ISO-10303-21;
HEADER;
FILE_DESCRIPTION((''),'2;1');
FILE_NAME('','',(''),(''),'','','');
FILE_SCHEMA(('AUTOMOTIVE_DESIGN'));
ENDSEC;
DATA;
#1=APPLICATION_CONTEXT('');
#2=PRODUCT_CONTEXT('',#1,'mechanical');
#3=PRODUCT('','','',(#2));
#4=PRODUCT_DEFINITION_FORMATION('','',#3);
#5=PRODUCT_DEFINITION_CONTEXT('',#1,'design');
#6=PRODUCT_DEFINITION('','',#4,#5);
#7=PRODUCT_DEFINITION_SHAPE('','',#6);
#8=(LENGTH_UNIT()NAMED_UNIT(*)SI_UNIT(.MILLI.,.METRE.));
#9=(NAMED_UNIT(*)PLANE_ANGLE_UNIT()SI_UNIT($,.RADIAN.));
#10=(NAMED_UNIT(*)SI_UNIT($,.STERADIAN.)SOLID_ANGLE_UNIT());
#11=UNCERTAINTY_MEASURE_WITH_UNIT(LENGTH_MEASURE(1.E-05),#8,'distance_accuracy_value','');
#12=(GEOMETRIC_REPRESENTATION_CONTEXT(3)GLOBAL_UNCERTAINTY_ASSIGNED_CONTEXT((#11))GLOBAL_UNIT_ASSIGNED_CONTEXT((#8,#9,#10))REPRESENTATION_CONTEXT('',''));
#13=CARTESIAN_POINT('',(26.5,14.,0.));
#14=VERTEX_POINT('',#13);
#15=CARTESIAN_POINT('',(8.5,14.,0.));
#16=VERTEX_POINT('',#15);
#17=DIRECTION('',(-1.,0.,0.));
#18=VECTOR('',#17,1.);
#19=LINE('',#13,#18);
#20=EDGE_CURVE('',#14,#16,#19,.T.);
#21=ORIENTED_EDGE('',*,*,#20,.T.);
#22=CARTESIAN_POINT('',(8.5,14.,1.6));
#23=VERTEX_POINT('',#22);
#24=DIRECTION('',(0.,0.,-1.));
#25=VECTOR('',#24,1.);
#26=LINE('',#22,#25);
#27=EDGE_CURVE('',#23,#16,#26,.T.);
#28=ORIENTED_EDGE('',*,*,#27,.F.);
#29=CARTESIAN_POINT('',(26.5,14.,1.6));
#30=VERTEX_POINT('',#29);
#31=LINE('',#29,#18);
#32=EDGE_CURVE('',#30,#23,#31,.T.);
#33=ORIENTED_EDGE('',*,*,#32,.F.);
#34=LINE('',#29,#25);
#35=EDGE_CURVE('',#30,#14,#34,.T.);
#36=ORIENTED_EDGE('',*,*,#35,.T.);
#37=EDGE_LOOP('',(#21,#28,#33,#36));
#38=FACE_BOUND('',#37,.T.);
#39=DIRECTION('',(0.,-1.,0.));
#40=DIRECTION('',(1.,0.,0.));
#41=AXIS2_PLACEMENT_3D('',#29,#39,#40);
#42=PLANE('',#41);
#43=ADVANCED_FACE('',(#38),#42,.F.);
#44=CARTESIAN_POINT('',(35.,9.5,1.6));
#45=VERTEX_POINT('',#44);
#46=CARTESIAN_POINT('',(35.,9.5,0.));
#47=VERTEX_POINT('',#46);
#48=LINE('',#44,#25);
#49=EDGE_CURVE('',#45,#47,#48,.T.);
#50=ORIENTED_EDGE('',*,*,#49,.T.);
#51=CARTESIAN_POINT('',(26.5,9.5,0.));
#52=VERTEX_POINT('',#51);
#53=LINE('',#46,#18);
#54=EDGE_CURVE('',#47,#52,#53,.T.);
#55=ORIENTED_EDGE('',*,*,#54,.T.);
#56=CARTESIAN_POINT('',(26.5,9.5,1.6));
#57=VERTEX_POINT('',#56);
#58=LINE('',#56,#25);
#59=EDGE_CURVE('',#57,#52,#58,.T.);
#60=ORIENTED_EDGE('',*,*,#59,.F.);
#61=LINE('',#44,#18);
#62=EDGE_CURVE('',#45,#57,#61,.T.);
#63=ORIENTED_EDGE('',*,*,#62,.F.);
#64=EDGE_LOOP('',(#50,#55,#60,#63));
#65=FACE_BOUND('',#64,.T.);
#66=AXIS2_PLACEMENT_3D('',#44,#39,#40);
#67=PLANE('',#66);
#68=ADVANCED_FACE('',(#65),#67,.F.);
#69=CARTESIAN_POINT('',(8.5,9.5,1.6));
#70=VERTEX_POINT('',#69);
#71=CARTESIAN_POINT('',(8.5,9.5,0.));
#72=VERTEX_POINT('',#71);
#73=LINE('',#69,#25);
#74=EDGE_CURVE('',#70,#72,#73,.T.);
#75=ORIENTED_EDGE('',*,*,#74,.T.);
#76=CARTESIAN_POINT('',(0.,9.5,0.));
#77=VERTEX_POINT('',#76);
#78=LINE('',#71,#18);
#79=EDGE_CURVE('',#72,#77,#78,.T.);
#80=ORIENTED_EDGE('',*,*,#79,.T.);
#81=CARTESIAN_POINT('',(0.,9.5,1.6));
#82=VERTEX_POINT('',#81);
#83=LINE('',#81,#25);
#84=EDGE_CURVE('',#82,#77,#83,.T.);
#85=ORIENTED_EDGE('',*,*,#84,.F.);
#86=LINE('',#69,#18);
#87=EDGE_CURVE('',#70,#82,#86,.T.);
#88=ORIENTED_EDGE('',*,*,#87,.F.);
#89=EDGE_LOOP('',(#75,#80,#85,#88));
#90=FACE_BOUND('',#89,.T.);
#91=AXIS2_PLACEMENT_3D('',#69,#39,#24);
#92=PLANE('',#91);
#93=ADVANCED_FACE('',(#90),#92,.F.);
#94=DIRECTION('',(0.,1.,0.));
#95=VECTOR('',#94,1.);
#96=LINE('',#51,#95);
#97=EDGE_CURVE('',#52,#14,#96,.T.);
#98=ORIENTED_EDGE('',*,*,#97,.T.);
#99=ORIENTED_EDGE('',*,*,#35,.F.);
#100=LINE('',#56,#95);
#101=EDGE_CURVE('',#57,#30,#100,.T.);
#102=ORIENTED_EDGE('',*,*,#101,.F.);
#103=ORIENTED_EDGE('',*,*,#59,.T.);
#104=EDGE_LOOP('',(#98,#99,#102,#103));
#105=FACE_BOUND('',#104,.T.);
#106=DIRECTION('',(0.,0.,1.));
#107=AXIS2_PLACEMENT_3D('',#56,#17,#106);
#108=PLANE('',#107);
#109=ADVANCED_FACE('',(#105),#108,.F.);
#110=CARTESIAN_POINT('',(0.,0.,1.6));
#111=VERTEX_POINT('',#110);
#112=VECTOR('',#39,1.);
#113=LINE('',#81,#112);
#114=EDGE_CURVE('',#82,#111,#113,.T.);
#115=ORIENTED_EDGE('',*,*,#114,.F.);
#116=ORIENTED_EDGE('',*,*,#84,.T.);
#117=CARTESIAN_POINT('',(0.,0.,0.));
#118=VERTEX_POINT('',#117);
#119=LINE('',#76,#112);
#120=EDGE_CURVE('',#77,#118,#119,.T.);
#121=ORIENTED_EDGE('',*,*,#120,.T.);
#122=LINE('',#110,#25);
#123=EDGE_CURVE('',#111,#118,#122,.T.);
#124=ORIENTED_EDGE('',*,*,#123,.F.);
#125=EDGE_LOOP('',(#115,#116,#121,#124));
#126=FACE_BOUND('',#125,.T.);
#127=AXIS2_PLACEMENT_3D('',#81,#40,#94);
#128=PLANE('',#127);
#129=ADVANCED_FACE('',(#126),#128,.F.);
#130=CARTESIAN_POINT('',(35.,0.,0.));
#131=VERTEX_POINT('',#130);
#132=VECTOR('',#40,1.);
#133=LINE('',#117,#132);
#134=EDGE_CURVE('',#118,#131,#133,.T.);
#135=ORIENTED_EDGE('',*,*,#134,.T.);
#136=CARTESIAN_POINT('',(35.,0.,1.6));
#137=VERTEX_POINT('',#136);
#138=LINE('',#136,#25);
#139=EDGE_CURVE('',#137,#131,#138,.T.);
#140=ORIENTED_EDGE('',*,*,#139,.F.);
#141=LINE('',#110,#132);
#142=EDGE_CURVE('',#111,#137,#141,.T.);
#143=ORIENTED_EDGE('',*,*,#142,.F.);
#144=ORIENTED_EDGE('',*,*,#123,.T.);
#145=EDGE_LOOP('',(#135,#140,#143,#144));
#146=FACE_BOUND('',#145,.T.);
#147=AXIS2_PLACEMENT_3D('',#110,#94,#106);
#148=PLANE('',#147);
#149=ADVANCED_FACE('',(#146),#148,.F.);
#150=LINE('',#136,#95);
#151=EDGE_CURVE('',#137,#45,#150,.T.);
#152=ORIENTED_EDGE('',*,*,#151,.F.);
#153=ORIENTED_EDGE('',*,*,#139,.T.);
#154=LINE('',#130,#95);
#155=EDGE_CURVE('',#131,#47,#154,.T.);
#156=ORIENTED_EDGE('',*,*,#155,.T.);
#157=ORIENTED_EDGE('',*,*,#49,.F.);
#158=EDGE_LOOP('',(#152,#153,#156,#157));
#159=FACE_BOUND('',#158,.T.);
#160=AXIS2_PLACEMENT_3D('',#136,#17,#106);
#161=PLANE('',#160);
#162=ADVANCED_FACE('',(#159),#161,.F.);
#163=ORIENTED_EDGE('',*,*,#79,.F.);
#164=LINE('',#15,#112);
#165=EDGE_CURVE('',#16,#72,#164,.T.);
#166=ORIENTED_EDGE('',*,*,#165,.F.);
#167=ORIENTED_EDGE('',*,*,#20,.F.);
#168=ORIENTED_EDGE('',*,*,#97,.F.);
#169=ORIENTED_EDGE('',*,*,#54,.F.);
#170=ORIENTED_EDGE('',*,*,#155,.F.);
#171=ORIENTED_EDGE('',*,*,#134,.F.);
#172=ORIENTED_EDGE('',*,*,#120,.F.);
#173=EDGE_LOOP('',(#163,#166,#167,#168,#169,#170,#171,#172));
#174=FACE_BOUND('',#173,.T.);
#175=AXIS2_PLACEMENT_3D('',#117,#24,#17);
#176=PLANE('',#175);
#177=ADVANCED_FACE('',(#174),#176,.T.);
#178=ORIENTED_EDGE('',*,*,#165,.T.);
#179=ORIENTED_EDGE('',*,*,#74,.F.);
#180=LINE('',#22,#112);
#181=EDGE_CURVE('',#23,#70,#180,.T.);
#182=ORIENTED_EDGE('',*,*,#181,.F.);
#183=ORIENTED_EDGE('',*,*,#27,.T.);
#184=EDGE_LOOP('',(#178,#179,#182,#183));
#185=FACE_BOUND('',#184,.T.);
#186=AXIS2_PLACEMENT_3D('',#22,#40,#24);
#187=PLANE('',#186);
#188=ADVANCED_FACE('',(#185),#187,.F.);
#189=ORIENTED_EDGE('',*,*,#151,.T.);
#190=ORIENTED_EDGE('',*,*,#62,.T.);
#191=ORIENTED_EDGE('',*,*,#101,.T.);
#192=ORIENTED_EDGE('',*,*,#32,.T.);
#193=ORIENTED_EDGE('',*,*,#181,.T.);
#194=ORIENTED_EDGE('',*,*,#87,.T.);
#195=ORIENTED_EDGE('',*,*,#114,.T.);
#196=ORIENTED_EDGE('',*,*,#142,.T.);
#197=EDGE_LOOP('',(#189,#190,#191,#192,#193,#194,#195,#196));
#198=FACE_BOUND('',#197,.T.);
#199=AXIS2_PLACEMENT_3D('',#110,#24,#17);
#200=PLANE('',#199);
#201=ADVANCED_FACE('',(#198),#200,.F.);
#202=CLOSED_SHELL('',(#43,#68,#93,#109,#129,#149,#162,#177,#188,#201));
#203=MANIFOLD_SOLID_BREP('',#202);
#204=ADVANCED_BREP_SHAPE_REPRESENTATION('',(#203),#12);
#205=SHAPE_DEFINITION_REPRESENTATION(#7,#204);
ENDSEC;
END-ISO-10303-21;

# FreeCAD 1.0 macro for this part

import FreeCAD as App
import Part
import Sketcher

doc = App.newDocument("Part")
body = doc.addObject("PartDesign::Body", "Body")

sketch1 = doc.addObject("Sketcher::SketchObject", "Sketch")
body.addObject(sketch1)
sketch1.AttachmentSupport = (doc.XY_Plane, [""])
sketch1.MapMode = "FlatFace"
sketch1.addGeometry(Part.LineSegment(App.Vector(0, 0, 0), App.Vector(35, 0, 0)), False)
sketch1.addGeometry(Part.LineSegment(App.Vector(35, 0, 0), App.Vector(35, 9.5, 0)), False)
sketch1.addGeometry(Part.LineSegment(App.Vector(35, 9.5, 0), App.Vector(26.5, 9.5, 0)), False)
sketch1.addGeometry(Part.LineSegment(App.Vector(26.5, 9.5, 0), App.Vector(26.5, 14, 0)), False)
sketch1.addGeometry(Part.LineSegment(App.Vector(26.5, 14, 0), App.Vector(8.5, 14, 0)), False)
sketch1.addGeometry(Part.LineSegment(App.Vector(8.5, 14, 0), App.Vector(8.5, 9.5, 0)), False)
sketch1.addGeometry(Part.LineSegment(App.Vector(8.5, 9.5, 0), App.Vector(0, 9.5, 0)), False)
sketch1.addGeometry(Part.LineSegment(App.Vector(0, 9.5, 0), App.Vector(0, 0, 0)), False)
sketch1.addConstraint(Sketcher.Constraint("Coincident", 0, 2, 1, 1))
sketch1.addConstraint(Sketcher.Constraint("Coincident", 1, 2, 2, 1))
sketch1.addConstraint(Sketcher.Constraint("Coincident", 2, 2, 3, 1))
sketch1.addConstraint(Sketcher.Constraint("Coincident", 3, 2, 4, 1))
sketch1.addConstraint(Sketcher.Constraint("Coincident", 4, 2, 5, 1))
sketch1.addConstraint(Sketcher.Constraint("Coincident", 5, 2, 6, 1))
sketch1.addConstraint(Sketcher.Constraint("Coincident", 6, 2, 7, 1))
sketch1.addConstraint(Sketcher.Constraint("Coincident", 7, 2, 0, 1))
sketch1.addConstraint(Sketcher.Constraint("Horizontal", 0))
sketch1.addConstraint(Sketcher.Constraint("Vertical", 1))
sketch1.addConstraint(Sketcher.Constraint("Horizontal", 2))
sketch1.addConstraint(Sketcher.Constraint("Vertical", 3))
sketch1.addConstraint(Sketcher.Constraint("Horizontal", 4))
sketch1.addConstraint(Sketcher.Constraint("Vertical", 5))
sketch1.addConstraint(Sketcher.Constraint("Horizontal", 6))
sketch1.addConstraint(Sketcher.Constraint("Vertical", 7))
sketch1.addConstraint(Sketcher.Constraint("Coincident", 7, 2, -1, 1))
sketch1.addConstraint(Sketcher.Constraint("Horizontal", 2, 2, 5, 2))
sketch1.addConstraint(Sketcher.Constraint("Equal", 2, 6))
sketch1.addConstraint(Sketcher.Constraint("DistanceX", 0, 1, 0, 2, 35.0))
sketch1.addConstraint(Sketcher.Constraint("DistanceX", 4, 2, 4, 1, 18.0))
sketch1.addConstraint(Sketcher.Constraint("DistanceY", 1, 1, 1, 2, 9.5))
sketch1.addConstraint(Sketcher.Constraint("DistanceY", 3, 1, 3, 2, 4.5))
pad1 = doc.addObject("PartDesign::Pad", "Pad")
body.addObject(pad1)
pad1.Profile = sketch1
pad1.Length = 1.6

doc.recompute()
